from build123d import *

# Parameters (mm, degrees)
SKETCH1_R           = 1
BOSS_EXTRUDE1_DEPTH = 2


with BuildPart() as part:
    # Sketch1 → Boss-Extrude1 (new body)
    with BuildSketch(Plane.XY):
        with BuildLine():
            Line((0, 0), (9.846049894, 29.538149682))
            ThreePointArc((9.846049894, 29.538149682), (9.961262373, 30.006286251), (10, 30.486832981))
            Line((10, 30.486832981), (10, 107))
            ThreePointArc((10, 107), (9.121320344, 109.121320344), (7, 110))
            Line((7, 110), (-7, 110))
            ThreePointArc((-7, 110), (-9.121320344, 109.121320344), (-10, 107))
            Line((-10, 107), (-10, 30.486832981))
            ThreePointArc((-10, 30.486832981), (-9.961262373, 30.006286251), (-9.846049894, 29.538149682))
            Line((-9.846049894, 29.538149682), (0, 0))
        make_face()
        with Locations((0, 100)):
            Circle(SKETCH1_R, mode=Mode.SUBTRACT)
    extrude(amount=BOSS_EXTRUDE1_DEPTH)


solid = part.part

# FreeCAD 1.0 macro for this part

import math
import FreeCAD as App
import Part
import Sketcher

V = App.Vector
Q = App.Units.Quantity

doc = App.newDocument("Part")
params = doc.addObject("Spreadsheet::Sheet", "Params")
for row, (alias, value) in enumerate([
    ("sketch1_diameter", "2 mm"),
    ("sketch1_radius", "3 mm"),
    ("sketch1_width", "14 mm"),
    ("pad1_length", "2 mm"),
], start=1):
    params.set(f"A{row}", alias)
    params.set(f"B{row}", "=" + value)
    params.setAlias(f"B{row}", alias)

body = doc.addObject("PartDesign::Body", "Body")

# Sketch on XY plane
sketch1 = body.newObject("Sketcher::SketchObject", "Sketch")
sketch1.AttachmentSupport = (doc.getObject("XY_Plane"), [""])
sketch1.MapMode = "FlatFace"
sketch1.addGeometry([
    Part.LineSegment(V(0, 0, 0), V(9.84605, 29.53815, 0)),  # 0
    Part.ArcOfCircle(Part.Circle(V(7, 30.486833, 0), V(0, 0, 1), 3), math.radians(-18.434949), math.radians(0)),  # 1
    Part.LineSegment(V(10, 30.486833, 0), V(10, 107, 0)),  # 2
    Part.ArcOfCircle(Part.Circle(V(7, 107, 0), V(0, 0, 1), 3), math.radians(0), math.radians(90)),  # 3
    Part.LineSegment(V(7, 110, 0), V(-7, 110, 0)),  # 4
    Part.ArcOfCircle(Part.Circle(V(-7, 107, 0), V(0, 0, 1), 3), math.radians(90), math.radians(180)),  # 5
    Part.LineSegment(V(-10, 107, 0), V(-10, 30.486833, 0)),  # 6
    Part.ArcOfCircle(Part.Circle(V(-7, 30.486833, 0), V(0, 0, 1), 3), math.radians(180), math.radians(198.434949)),  # 7
    Part.LineSegment(V(-9.84605, 29.53815, 0), V(0, 0, 0)),  # 8
    Part.Circle(V(0, 100, 0), V(0, 0, 1), 1),  # 9
], False)
sketch1.addConstraint([
    Sketcher.Constraint("Tangent", 0, 2, 1, 1),
    Sketcher.Constraint("Tangent", 1, 2, 2, 1),
    Sketcher.Constraint("Tangent", 2, 2, 3, 1),
    Sketcher.Constraint("Tangent", 3, 2, 4, 1),
    Sketcher.Constraint("Tangent", 4, 2, 5, 1),
    Sketcher.Constraint("Tangent", 5, 2, 6, 1),
    Sketcher.Constraint("Tangent", 6, 2, 7, 1),
    Sketcher.Constraint("Tangent", 7, 2, 8, 1),
    Sketcher.Constraint("Coincident", 8, 2, 0, 1),
    Sketcher.Constraint("Vertical", 2),
    Sketcher.Constraint("Horizontal", 4),
    Sketcher.Constraint("Vertical", 6),
    Sketcher.Constraint("Coincident", 8, 2, -1, 1),
    Sketcher.Constraint("Equal", 1, 3),
    Sketcher.Constraint("Equal", 3, 5),
    Sketcher.Constraint("Equal", 5, 7),
    Sketcher.Constraint("Symmetric", 1, 3, 7, 3, -2),
    Sketcher.Constraint("PointOnObject", 9, 3, -2),
    Sketcher.Constraint("Diameter", 9, Q("2 mm")),
    Sketcher.Constraint("Radius", 1, Q("3 mm")),
    Sketcher.Constraint("DistanceX", 4, 2, 4, 1, Q("14 mm")),
    Sketcher.Constraint("DistanceY", -1, 1, 3, 3, Q("107 mm")),
    Sketcher.Constraint("DistanceY", -1, 1, 9, 3, Q("100 mm")),
    Sketcher.Constraint("DistanceX", 7, 2, 0, 2, Q("19.6921 mm")),
])
sketch1.setExpression("Constraints[18]", "Params.sketch1_diameter")
sketch1.setExpression("Constraints[19]", "Params.sketch1_radius")
sketch1.setExpression("Constraints[20]", "Params.sketch1_width")
pad1 = body.newObject("PartDesign::Pad", "Pad")
pad1.Profile = sketch1
pad1.setExpression("Length", "Params.pad1_length")

doc.recompute()
